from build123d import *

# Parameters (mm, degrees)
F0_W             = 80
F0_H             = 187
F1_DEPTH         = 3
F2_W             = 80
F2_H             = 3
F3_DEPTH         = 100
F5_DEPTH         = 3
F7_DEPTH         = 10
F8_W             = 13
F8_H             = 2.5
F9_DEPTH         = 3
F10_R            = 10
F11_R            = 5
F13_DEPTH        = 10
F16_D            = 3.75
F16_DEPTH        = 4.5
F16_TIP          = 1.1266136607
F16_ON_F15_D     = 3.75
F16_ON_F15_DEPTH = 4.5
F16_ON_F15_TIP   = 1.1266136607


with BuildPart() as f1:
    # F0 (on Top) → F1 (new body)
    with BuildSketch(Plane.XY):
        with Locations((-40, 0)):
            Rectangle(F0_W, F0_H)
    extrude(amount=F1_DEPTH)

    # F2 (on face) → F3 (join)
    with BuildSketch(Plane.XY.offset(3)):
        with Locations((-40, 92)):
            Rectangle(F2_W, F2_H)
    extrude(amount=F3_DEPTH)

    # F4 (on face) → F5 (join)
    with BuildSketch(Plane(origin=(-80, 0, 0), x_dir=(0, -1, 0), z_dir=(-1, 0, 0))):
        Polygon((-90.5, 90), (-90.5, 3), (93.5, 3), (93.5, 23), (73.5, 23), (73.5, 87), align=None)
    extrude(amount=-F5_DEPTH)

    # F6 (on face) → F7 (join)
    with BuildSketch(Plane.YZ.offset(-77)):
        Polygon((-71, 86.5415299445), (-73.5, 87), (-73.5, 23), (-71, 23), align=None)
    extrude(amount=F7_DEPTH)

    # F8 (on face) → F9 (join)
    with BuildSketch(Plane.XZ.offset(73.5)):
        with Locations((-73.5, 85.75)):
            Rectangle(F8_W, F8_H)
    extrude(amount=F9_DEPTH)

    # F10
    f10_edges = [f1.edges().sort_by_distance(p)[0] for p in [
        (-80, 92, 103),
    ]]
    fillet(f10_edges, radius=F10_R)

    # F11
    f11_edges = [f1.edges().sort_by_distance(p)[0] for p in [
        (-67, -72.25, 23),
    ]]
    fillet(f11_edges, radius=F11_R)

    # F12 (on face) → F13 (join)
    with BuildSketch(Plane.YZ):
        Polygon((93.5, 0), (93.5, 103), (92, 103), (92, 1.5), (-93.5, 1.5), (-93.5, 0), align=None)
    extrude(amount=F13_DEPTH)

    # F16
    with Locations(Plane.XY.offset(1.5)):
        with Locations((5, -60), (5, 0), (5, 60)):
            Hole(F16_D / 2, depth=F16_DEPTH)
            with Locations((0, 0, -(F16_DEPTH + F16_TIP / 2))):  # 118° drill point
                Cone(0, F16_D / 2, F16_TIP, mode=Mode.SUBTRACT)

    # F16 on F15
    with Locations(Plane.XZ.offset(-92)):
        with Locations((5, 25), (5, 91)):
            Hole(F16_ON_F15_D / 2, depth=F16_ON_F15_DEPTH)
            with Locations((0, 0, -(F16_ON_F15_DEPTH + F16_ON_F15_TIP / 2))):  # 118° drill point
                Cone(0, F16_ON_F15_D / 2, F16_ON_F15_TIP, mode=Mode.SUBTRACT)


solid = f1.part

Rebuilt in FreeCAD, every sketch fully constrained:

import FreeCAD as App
import Part
import Sketcher
from FreeCAD import Vector


def edges_at(feature, points):
    """Names of the edges that pass closest to the given points."""
    edges = feature.Shape.Edges
    near = lambda p: min(range(len(edges)), key=lambda i: edges[i].distToShape(Part.Vertex(*p))[0])
    return sorted({f"Edge{near(p) + 1}" for p in points})

doc = App.newDocument("Part")
body = doc.addObject("PartDesign::Body", "Body")

# Sketch on XY plane
sketch1 = body.newObject("Sketcher::SketchObject", "Sketch")
sketch1.AttachmentSupport = (doc.getObject("XY_Plane"), [""])
sketch1.MapMode = "FlatFace"
sketch1.addGeometry(Part.LineSegment(Vector(-80, 93.5, 0), Vector(-80, -93.5, 0)), False)
sketch1.addGeometry(Part.LineSegment(Vector(-80, -93.5, 0), Vector(0, -93.5, 0)), False)
sketch1.addGeometry(Part.LineSegment(Vector(0, -93.5, 0), Vector(0, 93.5, 0)), False)
sketch1.addGeometry(Part.LineSegment(Vector(0, 93.5, 0), Vector(-80, 93.5, 0)), False)
sketch1.addConstraint(Sketcher.Constraint("Coincident", 0, 2, 1, 1))
sketch1.addConstraint(Sketcher.Constraint("Coincident", 1, 2, 2, 1))
sketch1.addConstraint(Sketcher.Constraint("Coincident", 2, 2, 3, 1))
sketch1.addConstraint(Sketcher.Constraint("Coincident", 3, 2, 0, 1))
sketch1.addConstraint(Sketcher.Constraint("Vertical", 0))
sketch1.addConstraint(Sketcher.Constraint("Horizontal", 1))
sketch1.addConstraint(Sketcher.Constraint("Vertical", 2))
sketch1.addConstraint(Sketcher.Constraint("Horizontal", 3))
sketch1.addConstraint(Sketcher.Constraint("Symmetric", 1, 2, 2, 2, -1, 1))
sketch1.addConstraint(Sketcher.Constraint("DistanceX", 1, 1, 1, 2, 80.0))
sketch1.addConstraint(Sketcher.Constraint("DistanceY", 0, 2, 0, 1, 187.0))
pad1 = body.newObject("PartDesign::Pad", "Pad")
pad1.Profile = sketch1
pad1.Length = 3

# Sketch on XY plane
sketch2 = body.newObject("Sketcher::SketchObject", "Sketch001")
sketch2.AttachmentSupport = (doc.getObject("XY_Plane"), [""])
sketch2.MapMode = "FlatFace"
sketch2.AttachmentOffset = App.Placement(Vector(0, 0, 3), App.Rotation())
sketch2.addGeometry(Part.LineSegment(Vector(-80, 93.5, 0), Vector(-80, 90.5, 0)), False)
sketch2.addGeometry(Part.LineSegment(Vector(-80, 90.5, 0), Vector(0, 90.5, 0)), False)
sketch2.addGeometry(Part.LineSegment(Vector(0, 90.5, 0), Vector(0, 93.5, 0)), False)
sketch2.addGeometry(Part.LineSegment(Vector(0, 93.5, 0), Vector(-80, 93.5, 0)), False)
sketch2.addConstraint(Sketcher.Constraint("Coincident", 0, 2, 1, 1))
sketch2.addConstraint(Sketcher.Constraint("Coincident", 1, 2, 2, 1))
sketch2.addConstraint(Sketcher.Constraint("Coincident", 2, 2, 3, 1))
sketch2.addConstraint(Sketcher.Constraint("Coincident", 3, 2, 0, 1))
sketch2.addConstraint(Sketcher.Constraint("Vertical", 0))
sketch2.addConstraint(Sketcher.Constraint("Horizontal", 1))
sketch2.addConstraint(Sketcher.Constraint("Vertical", 2))
sketch2.addConstraint(Sketcher.Constraint("Horizontal", 3))
sketch2.addConstraint(Sketcher.Constraint("PointOnObject", 1, 2, -2))
sketch2.addConstraint(Sketcher.Constraint("DistanceX", 1, 1, 1, 2, 80.0))
sketch2.addConstraint(Sketcher.Constraint("DistanceY", 0, 2, 0, 1, 3.0))
sketch2.addConstraint(Sketcher.Constraint("DistanceY", -1, 1, 0, 2, 90.5))
pad2 = body.newObject("PartDesign::Pad", "Pad001")
pad2.Profile = sketch2
pad2.Length = 100

# Sketch on YZ plane
sketch3 = body.newObject("Sketcher::SketchObject", "Sketch002")
sketch3.AttachmentSupport = (doc.getObject("YZ_Plane"), [""])
sketch3.MapMode = "FlatFace"
sketch3.AttachmentOffset = App.Placement(Vector(0, 0, -80), App.Rotation())
sketch3.addGeometry(Part.LineSegment(Vector(90.5, 90, 0), Vector(90.5, 3, 0)), False)
sketch3.addGeometry(Part.LineSegment(Vector(90.5, 3, 0), Vector(-93.5, 3, 0)), False)
sketch3.addGeometry(Part.LineSegment(Vector(-93.5, 3, 0), Vector(-93.5, 23, 0)), False)
sketch3.addGeometry(Part.LineSegment(Vector(-93.5, 23, 0), Vector(-73.5, 23, 0)), False)
sketch3.addGeometry(Part.LineSegment(Vector(-73.5, 23, 0), Vector(-73.5, 87, 0)), False)
sketch3.addGeometry(Part.LineSegment(Vector(-73.5, 87, 0), Vector(90.5, 90, 0)), False)
sketch3.addConstraint(Sketcher.Constraint("Coincident", 0, 2, 1, 1))
sketch3.addConstraint(Sketcher.Constraint("Coincident", 1, 2, 2, 1))
sketch3.addConstraint(Sketcher.Constraint("Coincident", 2, 2, 3, 1))
sketch3.addConstraint(Sketcher.Constraint("Coincident", 3, 2, 4, 1))
sketch3.addConstraint(Sketcher.Constraint("Coincident", 4, 2, 5, 1))
sketch3.addConstraint(Sketcher.Constraint("Coincident", 5, 2, 0, 1))
sketch3.addConstraint(Sketcher.Constraint("Vertical", 0))
sketch3.addConstraint(Sketcher.Constraint("Horizontal", 1))
sketch3.addConstraint(Sketcher.Constraint("Vertical", 2))
sketch3.addConstraint(Sketcher.Constraint("Horizontal", 3))
sketch3.addConstraint(Sketcher.Constraint("Vertical", 4))
sketch3.addConstraint(Sketcher.Constraint("Equal", 3, 2))
sketch3.addConstraint(Sketcher.Constraint("DistanceX", 1, 2, 1, 1, 184.0))
sketch3.addConstraint(Sketcher.Constraint("DistanceX", 3, 1, 3, 2, 20.0))
sketch3.addConstraint(Sketcher.Constraint("DistanceY", 0, 2, 0, 1, 87.0))
sketch3.addConstraint(Sketcher.Constraint("DistanceY", 4, 1, 4, 2, 64.0))
sketch3.addConstraint(Sketcher.Constraint("DistanceY", -1, 1, 0, 2, 3.0))
sketch3.addConstraint(Sketcher.Constraint("DistanceX", -1, 1, 0, 2, 90.5))
pad3 = body.newObject("PartDesign::Pad", "Pad002")
pad3.Profile = sketch3
pad3.Length = 3

# Sketch on YZ plane
sketch4 = body.newObject("Sketcher::SketchObject", "Sketch003")
sketch4.AttachmentSupport = (doc.getObject("YZ_Plane"), [""])
sketch4.MapMode = "FlatFace"
sketch4.AttachmentOffset = App.Placement(Vector(0, 0, -77), App.Rotation())
sketch4.addGeometry(Part.LineSegment(Vector(-71, 86.54153, 0), Vector(-73.5, 87, 0)), False)
sketch4.addGeometry(Part.LineSegment(Vector(-73.5, 87, 0), Vector(-73.5, 23, 0)), False)
sketch4.addGeometry(Part.LineSegment(Vector(-73.5, 23, 0), Vector(-71, 23, 0)), False)
sketch4.addGeometry(Part.LineSegment(Vector(-71, 23, 0), Vector(-71, 86.54153, 0)), False)
sketch4.addConstraint(Sketcher.Constraint("Coincident", 0, 2, 1, 1))
sketch4.addConstraint(Sketcher.Constraint("Coincident", 1, 2, 2, 1))
sketch4.addConstraint(Sketcher.Constraint("Coincident", 2, 2, 3, 1))
sketch4.addConstraint(Sketcher.Constraint("Coincident", 3, 2, 0, 1))
sketch4.addConstraint(Sketcher.Constraint("Vertical", 1))
sketch4.addConstraint(Sketcher.Constraint("Horizontal", 2))
sketch4.addConstraint(Sketcher.Constraint("Vertical", 3))
sketch4.addConstraint(Sketcher.Constraint("DistanceY", 1, 2, 1, 1, 64.0))
sketch4.addConstraint(Sketcher.Constraint("DistanceX", 2, 1, 2, 2, 2.5))
sketch4.addConstraint(Sketcher.Constraint("DistanceY", -1, 1, 0, 2, 87.0))
sketch4.addConstraint(Sketcher.Constraint("DistanceX", 2, 2, -1, 1, 71.0))
sketch4.addConstraint(Sketcher.Constraint("DistanceY", 3, 1, 3, 2, 63.54153))
pad4 = body.newObject("PartDesign::Pad", "Pad003")
pad4.Profile = sketch4
pad4.Length = 10

# Sketch on XZ plane
sketch5 = body.newObject("Sketcher::SketchObject", "Sketch004")
sketch5.AttachmentSupport = (doc.getObject("XZ_Plane"), [""])
sketch5.MapMode = "FlatFace"
sketch5.AttachmentOffset = App.Placement(Vector(0, 0, 73.5), App.Rotation())
sketch5.addGeometry(Part.LineSegment(Vector(-80, 87, 0), Vector(-80, 84.5, 0)), False)
sketch5.addGeometry(Part.LineSegment(Vector(-80, 84.5, 0), Vector(-67, 84.5, 0)), False)
sketch5.addGeometry(Part.LineSegment(Vector(-67, 84.5, 0), Vector(-67, 87, 0)), False)
sketch5.addGeometry(Part.LineSegment(Vector(-67, 87, 0), Vector(-80, 87, 0)), False)
sketch5.addConstraint(Sketcher.Constraint("Coincident", 0, 2, 1, 1))
sketch5.addConstraint(Sketcher.Constraint("Coincident", 1, 2, 2, 1))
sketch5.addConstraint(Sketcher.Constraint("Coincident", 2, 2, 3, 1))
sketch5.addConstraint(Sketcher.Constraint("Coincident", 3, 2, 0, 1))
sketch5.addConstraint(Sketcher.Constraint("Vertical", 0))
sketch5.addConstraint(Sketcher.Constraint("Horizontal", 1))
sketch5.addConstraint(Sketcher.Constraint("Vertical", 2))
sketch5.addConstraint(Sketcher.Constraint("Horizontal", 3))
sketch5.addConstraint(Sketcher.Constraint("DistanceX", 1, 1, 1, 2, 13.0))
sketch5.addConstraint(Sketcher.Constraint("DistanceY", 0, 2, 0, 1, 2.5))
sketch5.addConstraint(Sketcher.Constraint("DistanceX", 0, 2, -1, 1, 80.0))
sketch5.addConstraint(Sketcher.Constraint("DistanceY", -1, 1, 2, 2, 87.0))
pad5 = body.newObject("PartDesign::Pad", "Pad004")
pad5.Profile = sketch5
pad5.Length = 3
doc.recompute()

fillet = body.newObject("PartDesign::Fillet", "Fillet")
fillet.Base = (pad5, edges_at(pad5, [(-80, 92, 103)]))
fillet.Radius = 10
doc.recompute()

fillet2 = body.newObject("PartDesign::Fillet", "Fillet001")
fillet2.Base = (fillet, edges_at(fillet, [(-67, -72.25, 23)]))
fillet2.Radius = 5

# Sketch on YZ plane
sketch6 = body.newObject("Sketcher::SketchObject", "Sketch005")
sketch6.AttachmentSupport = (doc.getObject("YZ_Plane"), [""])
sketch6.MapMode = "FlatFace"
sketch6.addGeometry(Part.LineSegment(Vector(93.5, 0, 0), Vector(93.5, 103, 0)), False)
sketch6.addGeometry(Part.LineSegment(Vector(93.5, 103, 0), Vector(92, 103, 0)), False)
sketch6.addGeometry(Part.LineSegment(Vector(92, 103, 0), Vector(92, 1.5, 0)), False)
sketch6.addGeometry(Part.LineSegment(Vector(92, 1.5, 0), Vector(-93.5, 1.5, 0)), False)
sketch6.addGeometry(Part.LineSegment(Vector(-93.5, 1.5, 0), Vector(-93.5, 0, 0)), False)
sketch6.addGeometry(Part.LineSegment(Vector(-93.5, 0, 0), Vector(93.5, 0, 0)), False)
sketch6.addConstraint(Sketcher.Constraint("Coincident", 0, 2, 1, 1))
sketch6.addConstraint(Sketcher.Constraint("Coincident", 1, 2, 2, 1))
sketch6.addConstraint(Sketcher.Constraint("Coincident", 2, 2, 3, 1))
sketch6.addConstraint(Sketcher.Constraint("Coincident", 3, 2, 4, 1))
sketch6.addConstraint(Sketcher.Constraint("Coincident", 4, 2, 5, 1))
sketch6.addConstraint(Sketcher.Constraint("Coincident", 5, 2, 0, 1))
sketch6.addConstraint(Sketcher.Constraint("Vertical", 0))
sketch6.addConstraint(Sketcher.Constraint("Horizontal", 1))
sketch6.addConstraint(Sketcher.Constraint("Vertical", 2))
sketch6.addConstraint(Sketcher.Constraint("Horizontal", 3))
sketch6.addConstraint(Sketcher.Constraint("Vertical", 4))
sketch6.addConstraint(Sketcher.Constraint("Horizontal", 5))
sketch6.addConstraint(Sketcher.Constraint("Symmetric", 4, 2, 5, 2, -1, 1))
sketch6.addConstraint(Sketcher.Constraint("Equal", 1, 4))
sketch6.addConstraint(Sketcher.Constraint("DistanceX", 5, 1, 5, 2, 187.0))
sketch6.addConstraint(Sketcher.Constraint("DistanceY", 0, 1, 0, 2, 103.0))
sketch6.addConstraint(Sketcher.Constraint("DistanceX", 1, 2, 1, 1, 1.5))
pad6 = body.newObject("PartDesign::Pad", "Pad005")
pad6.Profile = sketch6
pad6.Length = 10

# Sketch on XY plane
sketch7 = body.newObject("Sketcher::SketchObject", "Sketch006")
sketch7.AttachmentSupport = (doc.getObject("XY_Plane"), [""])
sketch7.MapMode = "FlatFace"
sketch7.AttachmentOffset = App.Placement(Vector(0, 0, 1.5), App.Rotation())
sketch7.addGeometry(Part.Circle(Vector(5, -60, 0), Vector(0, 0, 1), 1.875), False)
sketch7.addGeometry(Part.Circle(Vector(5, 0, 0), Vector(0, 0, 1), 1.875), False)
sketch7.addGeometry(Part.Circle(Vector(5, 60, 0), Vector(0, 0, 1), 1.875), False)
sketch7.addConstraint(Sketcher.Constraint("Equal", 0, 1))
sketch7.addConstraint(Sketcher.Constraint("Equal", 1, 2))
sketch7.addConstraint(Sketcher.Constraint("Symmetric", 0, 3, 2, 3, -1))
sketch7.addConstraint(Sketcher.Constraint("PointOnObject", 1, 3, -1))
sketch7.addConstraint(Sketcher.Constraint("Vertical", 0, 3, 1, 3))
sketch7.addConstraint(Sketcher.Constraint("Diameter", 0, 3.75))
sketch7.addConstraint(Sketcher.Constraint("DistanceX", -1, 1, 0, 3, 5.0))
sketch7.addConstraint(Sketcher.Constraint("DistanceY", 0, 3, -1, 1, 60.0))
doc.recompute()
hole = body.newObject("PartDesign::Hole", "Hole")
hole.Profile = sketch7
hole.ThreadType = "None"
hole.Diameter = 3.75
hole.DepthType = "Dimension"
hole.Depth = 4.5
hole.DrillPoint = "Angled"
hole.DrillPointAngle = 118

# Sketch on XZ plane
sketch8 = body.newObject("Sketcher::SketchObject", "Sketch007")
sketch8.AttachmentSupport = (doc.getObject("XZ_Plane"), [""])
sketch8.MapMode = "FlatFace"
sketch8.AttachmentOffset = App.Placement(Vector(0, 0, -92), App.Rotation())
sketch8.addGeometry(Part.Circle(Vector(5, 25, 0), Vector(0, 0, 1), 1.875), False)
sketch8.addGeometry(Part.Circle(Vector(5, 91, 0), Vector(0, 0, 1), 1.875), False)
sketch8.addConstraint(Sketcher.Constraint("Equal", 0, 1))
sketch8.addConstraint(Sketcher.Constraint("Vertical", 0, 3, 1, 3))
sketch8.addConstraint(Sketcher.Constraint("Diameter", 0, 3.75))
sketch8.addConstraint(Sketcher.Constraint("DistanceX", -1, 1, 0, 3, 5.0))
sketch8.addConstraint(Sketcher.Constraint("DistanceY", -1, 1, 0, 3, 25.0))
sketch8.addConstraint(Sketcher.Constraint("DistanceY", -1, 1, 1, 3, 91.0))
doc.recompute()
hole2 = body.newObject("PartDesign::Hole", "Hole001")
hole2.Profile = sketch8
hole2.ThreadType = "None"
hole2.Diameter = 3.75
hole2.DepthType = "Dimension"
hole2.Depth = 4.5
hole2.DrillPoint = "Angled"
hole2.DrillPointAngle = 118

doc.recompute()
